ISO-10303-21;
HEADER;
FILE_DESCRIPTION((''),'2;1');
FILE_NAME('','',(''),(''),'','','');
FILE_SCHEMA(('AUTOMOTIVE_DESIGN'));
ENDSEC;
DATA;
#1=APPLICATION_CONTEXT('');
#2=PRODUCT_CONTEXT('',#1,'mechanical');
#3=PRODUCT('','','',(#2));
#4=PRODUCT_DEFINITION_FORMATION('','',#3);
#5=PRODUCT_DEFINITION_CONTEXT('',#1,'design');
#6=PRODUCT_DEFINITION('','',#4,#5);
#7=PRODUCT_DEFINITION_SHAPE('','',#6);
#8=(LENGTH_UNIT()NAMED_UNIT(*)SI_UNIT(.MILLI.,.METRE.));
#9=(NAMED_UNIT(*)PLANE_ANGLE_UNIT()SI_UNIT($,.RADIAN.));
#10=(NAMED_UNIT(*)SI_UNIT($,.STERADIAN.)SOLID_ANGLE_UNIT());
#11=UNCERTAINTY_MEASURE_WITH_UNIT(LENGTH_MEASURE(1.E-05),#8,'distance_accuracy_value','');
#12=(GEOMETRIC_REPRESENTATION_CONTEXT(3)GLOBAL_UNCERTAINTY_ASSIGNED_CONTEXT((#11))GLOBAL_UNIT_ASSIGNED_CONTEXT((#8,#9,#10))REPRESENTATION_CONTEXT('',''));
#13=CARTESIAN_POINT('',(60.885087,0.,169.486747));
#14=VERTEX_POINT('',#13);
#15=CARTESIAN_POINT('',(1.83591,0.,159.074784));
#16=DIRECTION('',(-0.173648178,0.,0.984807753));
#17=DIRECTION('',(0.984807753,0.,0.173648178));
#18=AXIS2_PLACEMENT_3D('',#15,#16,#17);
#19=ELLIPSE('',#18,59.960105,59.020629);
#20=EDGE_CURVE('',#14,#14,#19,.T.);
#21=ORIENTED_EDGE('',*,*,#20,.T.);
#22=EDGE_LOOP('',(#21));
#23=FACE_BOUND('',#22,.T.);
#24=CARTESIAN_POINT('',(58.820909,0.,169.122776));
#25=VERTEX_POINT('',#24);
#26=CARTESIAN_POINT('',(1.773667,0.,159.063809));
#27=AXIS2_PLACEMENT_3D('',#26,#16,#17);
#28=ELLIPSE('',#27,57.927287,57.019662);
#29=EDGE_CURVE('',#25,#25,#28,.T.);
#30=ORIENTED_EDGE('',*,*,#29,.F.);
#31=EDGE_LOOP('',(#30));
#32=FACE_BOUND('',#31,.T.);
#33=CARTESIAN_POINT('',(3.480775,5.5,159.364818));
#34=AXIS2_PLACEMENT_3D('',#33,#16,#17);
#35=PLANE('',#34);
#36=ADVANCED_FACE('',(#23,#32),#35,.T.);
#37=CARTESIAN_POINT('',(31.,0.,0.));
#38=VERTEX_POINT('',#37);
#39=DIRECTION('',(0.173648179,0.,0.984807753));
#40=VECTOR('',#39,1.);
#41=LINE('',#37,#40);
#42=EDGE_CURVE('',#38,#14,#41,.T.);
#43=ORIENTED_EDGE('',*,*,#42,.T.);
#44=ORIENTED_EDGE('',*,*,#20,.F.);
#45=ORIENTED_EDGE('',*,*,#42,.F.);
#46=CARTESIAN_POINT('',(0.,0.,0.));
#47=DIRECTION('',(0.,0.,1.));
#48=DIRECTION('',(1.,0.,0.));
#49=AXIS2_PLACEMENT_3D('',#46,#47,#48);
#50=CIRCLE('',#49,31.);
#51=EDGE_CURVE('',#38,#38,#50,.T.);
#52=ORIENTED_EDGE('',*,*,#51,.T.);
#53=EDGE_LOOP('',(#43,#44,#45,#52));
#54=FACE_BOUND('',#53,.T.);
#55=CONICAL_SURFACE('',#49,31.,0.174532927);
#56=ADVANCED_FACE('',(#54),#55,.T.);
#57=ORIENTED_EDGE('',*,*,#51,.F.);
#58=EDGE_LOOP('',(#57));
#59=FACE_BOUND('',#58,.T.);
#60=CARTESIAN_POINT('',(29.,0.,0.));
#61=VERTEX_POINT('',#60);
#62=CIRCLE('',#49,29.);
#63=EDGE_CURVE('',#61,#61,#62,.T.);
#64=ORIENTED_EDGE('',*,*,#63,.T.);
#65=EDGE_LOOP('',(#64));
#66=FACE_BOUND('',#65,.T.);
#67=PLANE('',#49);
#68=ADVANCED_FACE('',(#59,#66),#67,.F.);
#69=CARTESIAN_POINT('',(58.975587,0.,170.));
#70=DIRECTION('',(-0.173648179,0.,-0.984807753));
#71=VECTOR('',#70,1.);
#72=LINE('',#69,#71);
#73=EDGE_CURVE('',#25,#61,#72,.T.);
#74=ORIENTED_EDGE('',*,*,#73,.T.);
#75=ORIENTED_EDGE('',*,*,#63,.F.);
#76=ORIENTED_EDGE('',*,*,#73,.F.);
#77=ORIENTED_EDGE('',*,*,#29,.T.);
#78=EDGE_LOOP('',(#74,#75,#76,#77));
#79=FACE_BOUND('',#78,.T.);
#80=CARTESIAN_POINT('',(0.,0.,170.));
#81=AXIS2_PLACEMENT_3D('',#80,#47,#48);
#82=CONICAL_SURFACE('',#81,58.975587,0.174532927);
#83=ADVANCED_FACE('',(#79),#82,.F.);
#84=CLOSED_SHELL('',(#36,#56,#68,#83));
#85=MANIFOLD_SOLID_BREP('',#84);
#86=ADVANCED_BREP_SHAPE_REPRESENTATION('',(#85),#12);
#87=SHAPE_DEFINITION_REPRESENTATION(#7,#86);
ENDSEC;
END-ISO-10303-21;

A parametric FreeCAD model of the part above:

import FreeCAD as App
import Part
import Sketcher
Q = App.Units.Quantity

doc = App.newDocument("Part")
params = doc.addObject("Spreadsheet::Sheet", "Params")
for row, (alias, value) in enumerate([
    ("sketch1_width", "200 mm"),
    ("sketch1_height", "199 mm"),
    ("pad1_length", "200 mm"),
    ("sketch2_width", "2 mm"),
    ("revolution_angle", "360 deg"),
], start=1):
    params.set(f"A{row}", alias)
    params.set(f"B{row}", "=" + value)
    params.setAlias(f"B{row}", alias)

body = doc.addObject("PartDesign::Body", "Body")

# Sketch on XY plane
sketch1 = body.newObject("Sketcher::SketchObject", "Sketch")
sketch1.AttachmentSupport = (doc.getObject("XY_Plane"), [""])
sketch1.MapMode = "FlatFace"
sketch1.addGeometry([
    Part.LineSegment(App.Vector(0, 199, 0), App.Vector(0, 0, 0)),
    Part.LineSegment(App.Vector(0, 0, 0), App.Vector(200, 0, 0)),
    Part.LineSegment(App.Vector(200, 0, 0), App.Vector(200, 199, 0)),
    Part.LineSegment(App.Vector(200, 199, 0), App.Vector(0, 199, 0)),
], False)
sketch1.addConstraint([
    Sketcher.Constraint("Coincident", 0, 2, 1, 1),
    Sketcher.Constraint("Coincident", 1, 2, 2, 1),
    Sketcher.Constraint("Coincident", 2, 2, 3, 1),
    Sketcher.Constraint("Coincident", 3, 2, 0, 1),
    Sketcher.Constraint("Vertical", 0),
    Sketcher.Constraint("Horizontal", 1),
    Sketcher.Constraint("Vertical", 2),
    Sketcher.Constraint("Horizontal", 3),
    Sketcher.Constraint("Coincident", 0, 2, -1, 1),
    Sketcher.Constraint("DistanceX", 1, 1, 1, 2, 200.0),
    Sketcher.Constraint("DistanceY", 0, 2, 0, 1, 199.0),
])
sketch1.setExpression("Constraints[9]", "Params.sketch1_width")
sketch1.setExpression("Constraints[10]", "Params.sketch1_height")
pad1 = body.newObject("PartDesign::Pad", "Pad")
pad1.Profile = sketch1
pad1.setExpression("Length", "Params.pad1_length")
body2 = doc.addObject("PartDesign::Body", "Body001")
doc.recompute()

body.Placement = App.Placement(App.Vector(0, 0, 0), App.Rotation(App.Vector(0, 1, 0), 350))
boolean = body2.newObject("PartDesign::Boolean", "Boolean")
boolean.Type = "Fuse"
boolean.addObjects([body])
body3 = doc.addObject("PartDesign::Body", "Body002")
doc.recompute()

body2.Placement = App.Placement(App.Vector(-95, -94, 142), App.Rotation(App.Vector(0, 0, 1), 0))
boolean2 = body3.newObject("PartDesign::Boolean", "Boolean001")
boolean2.Type = "Fuse"
boolean2.addObjects([body2])
body4 = doc.addObject("PartDesign::Body", "Body003")

# Sketch on XZ plane
sketch2 = body4.newObject("Sketcher::SketchObject", "Sketch001")
sketch2.AttachmentSupport = (doc.getObject("XZ_Plane003"), [""])
sketch2.MapMode = "FlatFace"
sketch2.addGeometry([
    Part.LineSegment(App.Vector(31, 0, 0), App.Vector(61, 170, 0)),
    Part.LineSegment(App.Vector(61, 170, 0), App.Vector(59, 170, 0)),
    Part.LineSegment(App.Vector(59, 170, 0), App.Vector(29, 0, 0)),
    Part.LineSegment(App.Vector(29, 0, 0), App.Vector(31, 0, 0)),
], False)
sketch2.addConstraint([
    Sketcher.Constraint("Coincident", 0, 2, 1, 1),
    Sketcher.Constraint("Coincident", 1, 2, 2, 1),
    Sketcher.Constraint("Coincident", 2, 2, 3, 1),
    Sketcher.Constraint("Coincident", 3, 2, 0, 1),
    Sketcher.Constraint("Horizontal", 1),
    Sketcher.Constraint("Horizontal", 3),
    Sketcher.Constraint("PointOnObject", 2, 2, -1),
    Sketcher.Constraint("Parallel", 0, 2),
    Sketcher.Constraint("DistanceX", 1, 2, 1, 1, 2.0),
    Sketcher.Constraint("Angle", 0, Q("80 deg")),
    Sketcher.Constraint("DistanceY", -1, 1, 0, 2, 170.0),
    Sketcher.Constraint("DistanceX", -1, 1, 2, 2, 29.0),
])
sketch2.setExpression("Constraints[8]", "Params.sketch2_width")
revolution = body4.newObject("PartDesign::Revolution", "Revolution")
revolution.Profile = sketch2
revolution.ReferenceAxis = (sketch2, ["V_Axis"])
revolution.setExpression("Angle", "Params.revolution_angle")
doc.recompute()

boolean3 = body4.newObject("PartDesign::Boolean", "Boolean002")
boolean3.Type = "Cut"
boolean3.addObjects([body3])

doc.recompute()
